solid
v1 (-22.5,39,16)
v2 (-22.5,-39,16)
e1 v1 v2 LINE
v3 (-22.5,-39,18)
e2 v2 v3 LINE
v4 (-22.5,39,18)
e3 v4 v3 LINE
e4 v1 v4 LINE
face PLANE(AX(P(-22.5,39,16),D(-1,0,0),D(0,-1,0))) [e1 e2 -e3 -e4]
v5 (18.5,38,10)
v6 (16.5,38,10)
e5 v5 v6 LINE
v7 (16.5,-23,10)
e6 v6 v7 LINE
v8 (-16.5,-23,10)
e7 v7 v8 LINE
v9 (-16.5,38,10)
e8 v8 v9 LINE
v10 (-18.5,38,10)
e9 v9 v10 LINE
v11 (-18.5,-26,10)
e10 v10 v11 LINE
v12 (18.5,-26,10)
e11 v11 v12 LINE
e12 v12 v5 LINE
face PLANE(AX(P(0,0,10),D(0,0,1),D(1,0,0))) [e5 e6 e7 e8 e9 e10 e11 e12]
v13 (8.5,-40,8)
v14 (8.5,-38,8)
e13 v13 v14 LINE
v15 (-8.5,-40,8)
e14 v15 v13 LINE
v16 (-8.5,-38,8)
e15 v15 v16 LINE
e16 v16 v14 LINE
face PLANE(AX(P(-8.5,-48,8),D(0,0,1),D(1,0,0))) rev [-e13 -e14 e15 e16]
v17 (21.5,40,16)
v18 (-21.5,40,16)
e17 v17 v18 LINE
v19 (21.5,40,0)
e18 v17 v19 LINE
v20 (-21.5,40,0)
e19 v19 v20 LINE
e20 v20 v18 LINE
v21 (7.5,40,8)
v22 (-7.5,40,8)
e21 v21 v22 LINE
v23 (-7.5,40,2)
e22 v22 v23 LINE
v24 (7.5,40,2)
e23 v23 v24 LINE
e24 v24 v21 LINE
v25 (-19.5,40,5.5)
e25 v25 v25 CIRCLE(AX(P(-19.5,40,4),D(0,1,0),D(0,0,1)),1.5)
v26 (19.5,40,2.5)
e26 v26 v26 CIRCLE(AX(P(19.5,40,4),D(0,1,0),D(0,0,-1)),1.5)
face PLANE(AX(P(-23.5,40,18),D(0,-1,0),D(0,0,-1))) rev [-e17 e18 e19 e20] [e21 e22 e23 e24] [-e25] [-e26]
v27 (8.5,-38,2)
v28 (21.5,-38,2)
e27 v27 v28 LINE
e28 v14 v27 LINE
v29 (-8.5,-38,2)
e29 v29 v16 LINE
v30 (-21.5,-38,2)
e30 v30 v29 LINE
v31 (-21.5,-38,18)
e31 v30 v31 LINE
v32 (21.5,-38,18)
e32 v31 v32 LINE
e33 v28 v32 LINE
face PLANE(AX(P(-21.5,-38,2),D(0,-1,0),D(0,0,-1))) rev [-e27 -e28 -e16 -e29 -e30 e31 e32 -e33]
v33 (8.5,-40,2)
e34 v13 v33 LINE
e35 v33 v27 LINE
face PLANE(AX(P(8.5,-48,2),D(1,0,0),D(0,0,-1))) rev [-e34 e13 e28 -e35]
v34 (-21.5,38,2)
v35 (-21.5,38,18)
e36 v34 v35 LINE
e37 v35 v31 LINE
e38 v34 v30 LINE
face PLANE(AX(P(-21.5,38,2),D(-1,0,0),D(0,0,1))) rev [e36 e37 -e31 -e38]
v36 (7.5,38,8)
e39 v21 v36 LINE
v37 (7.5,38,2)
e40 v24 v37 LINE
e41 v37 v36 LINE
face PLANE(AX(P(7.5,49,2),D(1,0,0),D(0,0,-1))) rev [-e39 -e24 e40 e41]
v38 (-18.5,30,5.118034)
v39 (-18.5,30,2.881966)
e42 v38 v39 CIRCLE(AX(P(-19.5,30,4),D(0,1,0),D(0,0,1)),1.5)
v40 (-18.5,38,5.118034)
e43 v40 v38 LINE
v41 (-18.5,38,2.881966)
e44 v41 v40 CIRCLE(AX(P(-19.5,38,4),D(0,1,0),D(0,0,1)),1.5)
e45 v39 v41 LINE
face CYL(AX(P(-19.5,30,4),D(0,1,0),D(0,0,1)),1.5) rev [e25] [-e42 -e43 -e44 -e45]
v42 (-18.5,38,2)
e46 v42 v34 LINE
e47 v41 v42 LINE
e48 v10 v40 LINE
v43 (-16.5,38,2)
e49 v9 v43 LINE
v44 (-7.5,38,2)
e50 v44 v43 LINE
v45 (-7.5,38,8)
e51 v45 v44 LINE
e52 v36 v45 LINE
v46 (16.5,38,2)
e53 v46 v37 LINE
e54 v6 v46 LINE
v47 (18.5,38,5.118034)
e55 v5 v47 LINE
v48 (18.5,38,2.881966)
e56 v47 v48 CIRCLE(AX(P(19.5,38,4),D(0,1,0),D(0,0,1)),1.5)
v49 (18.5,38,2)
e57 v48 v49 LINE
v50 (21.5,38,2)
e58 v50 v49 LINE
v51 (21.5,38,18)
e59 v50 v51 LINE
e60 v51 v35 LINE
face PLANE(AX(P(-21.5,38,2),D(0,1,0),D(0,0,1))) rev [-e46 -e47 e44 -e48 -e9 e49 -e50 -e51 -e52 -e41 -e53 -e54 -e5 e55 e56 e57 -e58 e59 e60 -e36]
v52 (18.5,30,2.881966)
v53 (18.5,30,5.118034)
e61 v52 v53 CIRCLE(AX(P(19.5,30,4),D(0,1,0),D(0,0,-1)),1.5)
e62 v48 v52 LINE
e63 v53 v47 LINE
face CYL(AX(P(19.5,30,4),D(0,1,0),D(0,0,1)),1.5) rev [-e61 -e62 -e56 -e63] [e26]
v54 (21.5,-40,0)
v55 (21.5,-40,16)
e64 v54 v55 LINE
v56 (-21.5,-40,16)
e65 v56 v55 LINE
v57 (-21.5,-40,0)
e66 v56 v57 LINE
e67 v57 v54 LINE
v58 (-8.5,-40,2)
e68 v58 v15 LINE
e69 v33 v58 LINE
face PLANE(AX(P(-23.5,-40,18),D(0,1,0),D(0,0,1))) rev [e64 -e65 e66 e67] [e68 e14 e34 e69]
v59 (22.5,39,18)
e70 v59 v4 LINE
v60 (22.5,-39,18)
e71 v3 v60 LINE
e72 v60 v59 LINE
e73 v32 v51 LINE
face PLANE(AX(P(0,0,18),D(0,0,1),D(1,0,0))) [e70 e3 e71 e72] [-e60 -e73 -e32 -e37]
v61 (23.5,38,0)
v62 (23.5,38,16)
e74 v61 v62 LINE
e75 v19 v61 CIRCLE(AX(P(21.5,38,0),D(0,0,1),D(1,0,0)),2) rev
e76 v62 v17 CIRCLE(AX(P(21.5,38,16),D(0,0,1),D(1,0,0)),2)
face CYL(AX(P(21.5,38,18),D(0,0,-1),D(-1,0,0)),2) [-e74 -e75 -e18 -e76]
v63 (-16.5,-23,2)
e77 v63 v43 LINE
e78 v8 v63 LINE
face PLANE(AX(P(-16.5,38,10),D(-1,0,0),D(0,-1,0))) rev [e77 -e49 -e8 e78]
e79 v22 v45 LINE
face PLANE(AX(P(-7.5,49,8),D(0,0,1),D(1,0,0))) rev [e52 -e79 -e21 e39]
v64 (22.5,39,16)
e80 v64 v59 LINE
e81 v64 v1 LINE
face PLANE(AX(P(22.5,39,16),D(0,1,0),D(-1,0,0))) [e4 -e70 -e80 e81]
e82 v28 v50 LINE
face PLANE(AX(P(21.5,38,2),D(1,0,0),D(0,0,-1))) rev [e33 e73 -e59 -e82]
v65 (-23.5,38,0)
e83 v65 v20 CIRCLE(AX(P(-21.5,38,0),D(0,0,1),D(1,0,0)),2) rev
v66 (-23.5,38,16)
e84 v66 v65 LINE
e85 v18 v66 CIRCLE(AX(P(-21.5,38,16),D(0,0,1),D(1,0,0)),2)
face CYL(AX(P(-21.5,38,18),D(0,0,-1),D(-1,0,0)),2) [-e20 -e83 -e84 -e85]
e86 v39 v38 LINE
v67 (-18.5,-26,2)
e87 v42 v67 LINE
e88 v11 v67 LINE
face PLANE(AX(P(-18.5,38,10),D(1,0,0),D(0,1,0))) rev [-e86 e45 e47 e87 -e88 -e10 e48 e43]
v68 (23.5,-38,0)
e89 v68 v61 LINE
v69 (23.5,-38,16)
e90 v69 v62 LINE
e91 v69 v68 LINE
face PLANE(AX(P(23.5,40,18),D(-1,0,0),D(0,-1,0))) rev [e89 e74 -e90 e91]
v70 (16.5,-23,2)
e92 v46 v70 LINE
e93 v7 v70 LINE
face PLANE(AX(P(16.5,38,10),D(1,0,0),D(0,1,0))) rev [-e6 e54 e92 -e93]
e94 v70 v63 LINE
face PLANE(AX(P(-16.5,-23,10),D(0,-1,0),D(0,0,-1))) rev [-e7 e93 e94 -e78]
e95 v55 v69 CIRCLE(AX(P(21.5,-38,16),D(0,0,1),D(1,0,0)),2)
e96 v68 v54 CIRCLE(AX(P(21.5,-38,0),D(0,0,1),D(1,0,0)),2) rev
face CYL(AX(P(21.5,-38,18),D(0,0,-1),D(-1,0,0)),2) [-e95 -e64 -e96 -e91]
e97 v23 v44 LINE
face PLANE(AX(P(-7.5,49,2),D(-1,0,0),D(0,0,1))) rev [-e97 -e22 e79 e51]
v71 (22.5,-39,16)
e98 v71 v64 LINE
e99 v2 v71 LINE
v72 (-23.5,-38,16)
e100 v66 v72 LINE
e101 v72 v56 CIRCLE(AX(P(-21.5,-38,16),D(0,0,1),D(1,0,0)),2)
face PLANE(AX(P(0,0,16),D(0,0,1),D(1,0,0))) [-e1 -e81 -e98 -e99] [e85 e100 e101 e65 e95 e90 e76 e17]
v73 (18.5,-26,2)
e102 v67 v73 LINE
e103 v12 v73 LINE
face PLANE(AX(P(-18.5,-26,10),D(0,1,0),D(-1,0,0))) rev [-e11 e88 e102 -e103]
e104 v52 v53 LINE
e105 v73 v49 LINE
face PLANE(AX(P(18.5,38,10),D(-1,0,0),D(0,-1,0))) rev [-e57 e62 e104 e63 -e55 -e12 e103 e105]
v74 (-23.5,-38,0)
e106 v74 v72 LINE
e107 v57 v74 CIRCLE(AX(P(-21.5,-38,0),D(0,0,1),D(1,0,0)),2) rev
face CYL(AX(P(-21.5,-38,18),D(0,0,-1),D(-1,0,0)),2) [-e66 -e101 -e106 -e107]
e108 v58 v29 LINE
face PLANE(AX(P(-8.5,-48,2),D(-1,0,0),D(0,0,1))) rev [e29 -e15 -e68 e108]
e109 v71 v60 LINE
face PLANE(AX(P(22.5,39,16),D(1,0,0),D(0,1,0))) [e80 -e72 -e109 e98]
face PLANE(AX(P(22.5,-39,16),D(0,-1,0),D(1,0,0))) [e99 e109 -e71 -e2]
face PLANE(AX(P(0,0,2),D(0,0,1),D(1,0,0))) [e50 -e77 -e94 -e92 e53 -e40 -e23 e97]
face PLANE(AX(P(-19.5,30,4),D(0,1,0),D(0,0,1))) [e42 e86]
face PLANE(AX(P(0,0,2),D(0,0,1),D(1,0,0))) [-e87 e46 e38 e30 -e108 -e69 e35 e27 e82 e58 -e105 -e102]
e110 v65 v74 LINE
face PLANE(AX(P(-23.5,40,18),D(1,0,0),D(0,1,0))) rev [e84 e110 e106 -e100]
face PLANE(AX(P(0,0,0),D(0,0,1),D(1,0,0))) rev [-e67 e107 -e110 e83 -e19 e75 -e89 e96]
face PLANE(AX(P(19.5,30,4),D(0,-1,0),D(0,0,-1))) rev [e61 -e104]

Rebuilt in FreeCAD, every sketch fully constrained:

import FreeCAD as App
import Part
import Sketcher
Q = App.Units.Quantity


def edges_at(feature, points):
    """Names of the edges that pass closest to the given points."""
    edges = feature.Shape.Edges
    near = lambda p: min(range(len(edges)), key=lambda i: edges[i].distToShape(Part.Vertex(*p))[0])
    return sorted({f"Edge{near(p) + 1}" for p in points})


def add_polygon(sketch, points):
    """Adds a closed chain of lines whose ends are joined by coincident constraints."""
    first, n = sketch.GeometryCount, len(points)
    for a, b in zip(points, points[1:] + points[:1]):
        sketch.addGeometry(Part.LineSegment(App.Vector(*a, 0), App.Vector(*b, 0)), False)
    for i in range(n):
        sketch.addConstraint(Sketcher.Constraint("Coincident", first + i, 2, first + (i + 1) % n, 1))

doc = App.newDocument("Part")
body = doc.addObject("PartDesign::Body", "Body")

# Sketch on XY plane
sketch1 = doc.addObject("Sketcher::SketchObject", "Sketch")
body.addObject(sketch1)
sketch1.AttachmentSupport = (doc.XY_Plane, [""])
sketch1.MapMode = "FlatFace"
add_polygon(sketch1, [(-24, 40), (-24, -40), (24, -40), (24, 40)])  # lines 0-3
sketch1.addConstraint(Sketcher.Constraint("Vertical", 0))
sketch1.addConstraint(Sketcher.Constraint("Horizontal", 1))
sketch1.addConstraint(Sketcher.Constraint("Vertical", 2))
sketch1.addConstraint(Sketcher.Constraint("Horizontal", 3))
sketch1.addConstraint(Sketcher.Constraint("Symmetric", 0, 2, 2, 2, -1, 1))
sketch1.addConstraint(Sketcher.Constraint("DistanceX", 1, 1, 1, 2, Q("47 mm")))
sketch1.addConstraint(Sketcher.Constraint("DistanceY", 0, 2, 0, 1, Q("80 mm")))
pad1 = doc.addObject("PartDesign::Pad", "Pad")
body.addObject(pad1)
pad1.Profile = sketch1
pad1.Length = 18

# Sketch on XY plane
sketch2 = doc.addObject("Sketcher::SketchObject", "Sketch001")
body.addObject(sketch2)
sketch2.AttachmentSupport = (doc.XY_Plane, [""])
sketch2.MapMode = "FlatFace"
sketch2.AttachmentOffset = App.Placement(App.Vector(0, 0, 18), App.Rotation())
add_polygon(sketch2, [(-22, 38), (-22, -38), (22, -38), (22, 38)])  # lines 0-3
sketch2.addConstraint(Sketcher.Constraint("Vertical", 0))
sketch2.addConstraint(Sketcher.Constraint("Horizontal", 1))
sketch2.addConstraint(Sketcher.Constraint("Vertical", 2))
sketch2.addConstraint(Sketcher.Constraint("Horizontal", 3))
sketch2.addConstraint(Sketcher.Constraint("Symmetric", 0, 2, 2, 2, -1, 1))
sketch2.addConstraint(Sketcher.Constraint("DistanceX", 1, 1, 1, 2, Q("43 mm")))
sketch2.addConstraint(Sketcher.Constraint("DistanceY", 0, 2, 0, 1, Q("76 mm")))
pocket1 = doc.addObject("PartDesign::Pocket", "Pocket")
body.addObject(pocket1)
pocket1.Profile = sketch2
pocket1.Length = 16

# Sketch on XY plane
sketch3 = doc.addObject("Sketcher::SketchObject", "Sketch002")
body.addObject(sketch3)
sketch3.AttachmentSupport = (doc.XY_Plane, [""])
sketch3.MapMode = "FlatFace"
sketch3.AttachmentOffset = App.Placement(App.Vector(0, 0, 2), App.Rotation())
add_polygon(sketch3, [(-16.5, 38), (-18.5, 38), (-18.5, -26), (18.5, -26), (18.5, 38), (16.5, 38), (16.5, -23), (-16.5, -23)])  # lines 0-7
sketch3.addConstraint(Sketcher.Constraint("Horizontal", 0))
sketch3.addConstraint(Sketcher.Constraint("Vertical", 1))
sketch3.addConstraint(Sketcher.Constraint("Horizontal", 2))
sketch3.addConstraint(Sketcher.Constraint("Vertical", 3))
sketch3.addConstraint(Sketcher.Constraint("Horizontal", 4))
sketch3.addConstraint(Sketcher.Constraint("Vertical", 5))
sketch3.addConstraint(Sketcher.Constraint("Horizontal", 6))
sketch3.addConstraint(Sketcher.Constraint("Vertical", 7))
sketch3.addConstraint(Sketcher.Constraint("Symmetric", 0, 2, 3, 2, -2))
sketch3.addConstraint(Sketcher.Constraint("Equal", 0, 4))
sketch3.addConstraint(Sketcher.Constraint("DistanceX", 0, 2, 0, 1, Q("2 mm")))
sketch3.addConstraint(Sketcher.Constraint("DistanceX", 2, 1, 2, 2, Q("37 mm")))
sketch3.addConstraint(Sketcher.Constraint("DistanceY", 1, 2, 1, 1, Q("64 mm")))
sketch3.addConstraint(Sketcher.Constraint("DistanceY", 5, 2, 5, 1, Q("61 mm")))
sketch3.addConstraint(Sketcher.Constraint("DistanceY", -1, 1, 0, 2, Q("38 mm")))
pad2 = doc.addObject("PartDesign::Pad", "Pad001")
body.addObject(pad2)
pad2.Profile = sketch3
pad2.Length = 8

# Sketch on XZ plane
sketch4 = doc.addObject("Sketcher::SketchObject", "Sketch003")
body.addObject(sketch4)
sketch4.AttachmentSupport = (doc.XZ_Plane, [""])
sketch4.MapMode = "FlatFace"
sketch4.AttachmentOffset = App.Placement(App.Vector(0, 0, -38), App.Rotation())
add_polygon(sketch4, [(-8, 8), (-8, 2), (8, 2), (8, 8)])  # lines 0-3
sketch4.addConstraint(Sketcher.Constraint("Vertical", 0))
sketch4.addConstraint(Sketcher.Constraint("Horizontal", 1))
sketch4.addConstraint(Sketcher.Constraint("Vertical", 2))
sketch4.addConstraint(Sketcher.Constraint("Horizontal", 3))
sketch4.addConstraint(Sketcher.Constraint("DistanceX", 1, 1, 1, 2, Q("15 mm")))
sketch4.addConstraint(Sketcher.Constraint("DistanceY", 0, 2, 0, 1, Q("6 mm")))
sketch4.addConstraint(Sketcher.Constraint("DistanceY", -1, 1, 0, 2, Q("2 mm")))
sketch4.addConstraint(Sketcher.Constraint("DistanceX", 0, 2, -1, 1, Q("7.5 mm")))
pocket2 = doc.addObject("PartDesign::Pocket", "Pocket001")
body.addObject(pocket2)
pocket2.Profile = sketch4
pocket2.Length = 11

# Sketch on XY plane
sketch5 = doc.addObject("Sketcher::SketchObject", "Sketch004")
body.addObject(sketch5)
sketch5.AttachmentSupport = (doc.XY_Plane, [""])
sketch5.MapMode = "FlatFace"
sketch5.AttachmentOffset = App.Placement(App.Vector(0, 0, 18), App.Rotation())
add_polygon(sketch5, [(-24, 40), (-24, -40), (24, -40), (24, 40)])  # lines 0-3
add_polygon(sketch5, [(22, -39), (-22, -39), (-22, 39), (22, 39)])  # lines 4-7
sketch5.addConstraint(Sketcher.Constraint("Vertical", 0))
sketch5.addConstraint(Sketcher.Constraint("Horizontal", 1))
sketch5.addConstraint(Sketcher.Constraint("Vertical", 2))
sketch5.addConstraint(Sketcher.Constraint("Horizontal", 3))
sketch5.addConstraint(Sketcher.Constraint("Horizontal", 4))
sketch5.addConstraint(Sketcher.Constraint("Vertical", 5))
sketch5.addConstraint(Sketcher.Constraint("Horizontal", 6))
sketch5.addConstraint(Sketcher.Constraint("Vertical", 7))
sketch5.addConstraint(Sketcher.Constraint("Symmetric", 0, 2, 2, 2, -1, 1))
sketch5.addConstraint(Sketcher.Constraint("Symmetric", 4, 2, 6, 2, -1, 1))
sketch5.addConstraint(Sketcher.Constraint("DistanceX", 1, 1, 1, 2, Q("47 mm")))
sketch5.addConstraint(Sketcher.Constraint("DistanceX", 4, 2, 4, 1, Q("45 mm")))
sketch5.addConstraint(Sketcher.Constraint("DistanceY", 0, 2, 0, 1, Q("80 mm")))
sketch5.addConstraint(Sketcher.Constraint("DistanceY", 5, 1, 5, 2, Q("78 mm")))
pocket3 = doc.addObject("PartDesign::Pocket", "Pocket002")
body.addObject(pocket3)
pocket3.Profile = sketch5
pocket3.Length = 2

# Sketch on XZ plane
sketch6 = doc.addObject("Sketcher::SketchObject", "Sketch005")
body.addObject(sketch6)
sketch6.AttachmentSupport = (doc.XZ_Plane, [""])
sketch6.MapMode = "FlatFace"
sketch6.AttachmentOffset = App.Placement(App.Vector(0, 0, -40), App.Rotation())
sketch6.addGeometry(Part.Circle(App.Vector(-19.5, 4, 0), App.Vector(0, 0, 1), 1.5), False)
sketch6.addGeometry(Part.Circle(App.Vector(19.5, 4, 0), App.Vector(0, 0, 1), 1.5), False)
sketch6.addConstraint(Sketcher.Constraint("Equal", 0, 1))
sketch6.addConstraint(Sketcher.Constraint("Symmetric", 0, 3, 1, 3, -2))
sketch6.addConstraint(Sketcher.Constraint("Diameter", 0, Q("3 mm")))
sketch6.addConstraint(Sketcher.Constraint("DistanceY", -1, 1, 0, 3, Q("4 mm")))
sketch6.addConstraint(Sketcher.Constraint("DistanceX", 0, 3, 1, 3, Q("39 mm")))
pocket4 = doc.addObject("PartDesign::Pocket", "Pocket003")
body.addObject(pocket4)
pocket4.Profile = sketch6
pocket4.Length = 10
pocket4.Reversed = True

# Sketch on XZ plane
sketch7 = doc.addObject("Sketcher::SketchObject", "Sketch006")
body.addObject(sketch7)
sketch7.AttachmentSupport = (doc.XZ_Plane, [""])
sketch7.MapMode = "FlatFace"
sketch7.AttachmentOffset = App.Placement(App.Vector(0, 0, 38), App.Rotation())
add_polygon(sketch7, [(-8, 2), (-8, 8), (8, 8), (8, 2)])  # lines 0-3
sketch7.addConstraint(Sketcher.Constraint("Vertical", 0))
sketch7.addConstraint(Sketcher.Constraint("Horizontal", 1))
sketch7.addConstraint(Sketcher.Constraint("Vertical", 2))
sketch7.addConstraint(Sketcher.Constraint("Horizontal", 3))
sketch7.addConstraint(Sketcher.Constraint("DistanceX", 1, 1, 1, 2, Q("17 mm")))
sketch7.addConstraint(Sketcher.Constraint("DistanceY", 0, 1, 0, 2, Q("6 mm")))
sketch7.addConstraint(Sketcher.Constraint("DistanceY", -1, 1, 0, 2, Q("8 mm")))
sketch7.addConstraint(Sketcher.Constraint("DistanceX", 0, 2, -1, 1, Q("8.5 mm")))
pocket5 = doc.addObject("PartDesign::Pocket", "Pocket004")
body.addObject(pocket5)
pocket5.Profile = sketch7
pocket5.Length = 10
pocket5.Reversed = True
doc.recompute()

fillet = doc.addObject("PartDesign::Fillet", "Fillet")
body.addObject(fillet)
fillet.Base = (pocket5, edges_at(pocket5, [
    (23.5, -40, 8),
    (-23.5, -40, 8),
    (-23.5, 40, 8),
    (23.5, 40, 8),
]))
fillet.Radius = 2

doc.recompute()
